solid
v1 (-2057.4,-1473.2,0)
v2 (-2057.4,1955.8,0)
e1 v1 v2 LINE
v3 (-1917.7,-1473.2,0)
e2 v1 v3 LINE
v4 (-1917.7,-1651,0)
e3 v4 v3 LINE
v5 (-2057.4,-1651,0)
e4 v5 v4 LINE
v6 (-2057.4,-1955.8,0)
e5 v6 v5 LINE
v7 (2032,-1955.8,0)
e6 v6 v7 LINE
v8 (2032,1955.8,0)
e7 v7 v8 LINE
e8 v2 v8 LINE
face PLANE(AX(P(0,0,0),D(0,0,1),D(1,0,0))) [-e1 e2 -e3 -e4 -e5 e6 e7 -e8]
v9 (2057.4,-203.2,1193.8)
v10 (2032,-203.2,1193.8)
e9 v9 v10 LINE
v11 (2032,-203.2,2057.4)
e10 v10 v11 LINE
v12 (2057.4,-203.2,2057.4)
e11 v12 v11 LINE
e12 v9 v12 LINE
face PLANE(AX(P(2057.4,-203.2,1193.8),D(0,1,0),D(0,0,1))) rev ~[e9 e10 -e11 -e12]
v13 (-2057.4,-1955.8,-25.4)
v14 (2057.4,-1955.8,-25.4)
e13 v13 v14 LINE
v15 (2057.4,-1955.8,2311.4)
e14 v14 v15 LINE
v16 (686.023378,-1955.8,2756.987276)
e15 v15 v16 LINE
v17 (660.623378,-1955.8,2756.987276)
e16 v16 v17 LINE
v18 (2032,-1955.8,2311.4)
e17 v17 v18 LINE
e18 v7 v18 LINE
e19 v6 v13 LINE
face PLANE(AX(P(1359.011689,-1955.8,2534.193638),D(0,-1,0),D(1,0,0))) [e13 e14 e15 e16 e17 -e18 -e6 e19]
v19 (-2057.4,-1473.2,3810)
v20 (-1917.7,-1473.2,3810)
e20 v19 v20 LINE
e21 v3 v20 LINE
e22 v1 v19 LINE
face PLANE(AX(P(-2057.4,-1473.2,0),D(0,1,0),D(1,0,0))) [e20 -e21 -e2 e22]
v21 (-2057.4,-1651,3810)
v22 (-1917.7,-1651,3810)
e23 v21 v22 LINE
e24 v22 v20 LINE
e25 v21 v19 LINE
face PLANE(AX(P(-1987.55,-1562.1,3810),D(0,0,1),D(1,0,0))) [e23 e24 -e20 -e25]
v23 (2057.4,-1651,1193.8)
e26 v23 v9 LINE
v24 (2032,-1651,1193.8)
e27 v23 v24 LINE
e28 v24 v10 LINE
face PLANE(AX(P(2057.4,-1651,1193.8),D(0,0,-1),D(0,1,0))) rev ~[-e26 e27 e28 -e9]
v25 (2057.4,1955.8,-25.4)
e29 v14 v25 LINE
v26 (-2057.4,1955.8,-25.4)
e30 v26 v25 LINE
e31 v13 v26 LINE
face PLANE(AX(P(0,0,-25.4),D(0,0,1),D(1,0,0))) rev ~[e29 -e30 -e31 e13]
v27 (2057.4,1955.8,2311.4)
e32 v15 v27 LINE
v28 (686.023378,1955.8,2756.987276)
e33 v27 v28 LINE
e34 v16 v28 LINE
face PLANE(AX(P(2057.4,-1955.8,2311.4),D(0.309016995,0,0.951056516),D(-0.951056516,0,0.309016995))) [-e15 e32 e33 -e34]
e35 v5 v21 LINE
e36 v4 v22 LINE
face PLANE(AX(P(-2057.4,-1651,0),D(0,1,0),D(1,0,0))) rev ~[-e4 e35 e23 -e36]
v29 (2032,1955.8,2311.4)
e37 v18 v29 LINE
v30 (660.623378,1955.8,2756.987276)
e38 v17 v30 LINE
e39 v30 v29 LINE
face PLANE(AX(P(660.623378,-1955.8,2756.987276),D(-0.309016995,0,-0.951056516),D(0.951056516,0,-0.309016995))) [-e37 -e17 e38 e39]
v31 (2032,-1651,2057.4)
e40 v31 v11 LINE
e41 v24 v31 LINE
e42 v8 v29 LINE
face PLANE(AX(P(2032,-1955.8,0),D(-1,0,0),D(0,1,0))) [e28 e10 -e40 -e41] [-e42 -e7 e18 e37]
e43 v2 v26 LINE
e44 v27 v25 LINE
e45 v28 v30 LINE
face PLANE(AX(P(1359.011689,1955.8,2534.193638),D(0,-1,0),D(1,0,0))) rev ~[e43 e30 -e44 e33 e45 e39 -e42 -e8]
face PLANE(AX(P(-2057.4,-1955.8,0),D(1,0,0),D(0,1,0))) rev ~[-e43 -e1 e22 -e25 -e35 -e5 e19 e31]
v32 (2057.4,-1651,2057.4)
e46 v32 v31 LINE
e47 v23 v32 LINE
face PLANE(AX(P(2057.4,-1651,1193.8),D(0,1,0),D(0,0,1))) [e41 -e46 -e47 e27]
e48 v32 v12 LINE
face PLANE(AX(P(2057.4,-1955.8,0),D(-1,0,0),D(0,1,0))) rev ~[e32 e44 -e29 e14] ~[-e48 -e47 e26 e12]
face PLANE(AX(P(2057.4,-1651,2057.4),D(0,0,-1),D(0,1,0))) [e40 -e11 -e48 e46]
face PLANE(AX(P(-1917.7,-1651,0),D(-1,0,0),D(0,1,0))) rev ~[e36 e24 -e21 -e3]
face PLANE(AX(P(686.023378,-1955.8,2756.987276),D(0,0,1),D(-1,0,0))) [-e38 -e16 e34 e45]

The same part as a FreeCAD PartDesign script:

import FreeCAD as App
import Part
import Sketcher
from FreeCAD import Vector
Q = App.Units.Quantity


def add_polygon(sketch, points):
    """Adds a closed chain of lines whose ends are joined by coincident constraints."""
    first, n = sketch.GeometryCount, len(points)
    for a, b in zip(points, points[1:] + points[:1]):
        sketch.addGeometry(Part.LineSegment(App.Vector(*a, 0), App.Vector(*b, 0)), False)
    for i in range(n):
        sketch.addConstraint(Sketcher.Constraint("Coincident", first + i, 2, first + (i + 1) % n, 1))

doc = App.newDocument("Part")
params = doc.addObject("Spreadsheet::Sheet", "Params")
for row, (alias, value) in enumerate([
    ("sketch1_width", "162 in"),
    ("sketch1_height", "154 in"),
    ("pad1_length", "1 in"),
    ("sketch2_width", "1 in"),
    ("sketch2_height", "154 in"),
    ("pad2_length", "91 in"),
    ("sketch3_width", "57 in"),
    ("sketch3_height", "34 in"),
    ("pocket1_length", "1 in"),
    ("sketch4_height", "7 in"),
    ("sketch4_width", "5.5 in"),
    ("pad3_length", "150 in"),
    ("sketch5_width", "1 in"),
    ("pad4_length", "154 in"),
], start=1):
    params.set(f"A{row}", alias)
    params.set(f"B{row}", "=" + value)
    params.setAlias(f"B{row}", alias)

body = doc.addObject("PartDesign::Body", "Body")

sketch1 = body.newObject("Sketcher::SketchObject", "Sketch")
sketch1.AttachmentSupport = (doc.getObject("XY_Plane"), [""])
sketch1.MapMode = "FlatFace"
add_polygon(sketch1, [(-2057, 1956), (-2057, -1956), (2057, -1956), (2057, 1956)])
sketch1.addConstraint(Sketcher.Constraint("Vertical", 0))
sketch1.addConstraint(Sketcher.Constraint("Horizontal", 1))
sketch1.addConstraint(Sketcher.Constraint("Vertical", 2))
sketch1.addConstraint(Sketcher.Constraint("Horizontal", 3))
sketch1.addConstraint(Sketcher.Constraint("Symmetric", 0, 2, 2, 2, -1, 1))
sketch1.addConstraint(Sketcher.Constraint("DistanceX", 1, 1, 1, 2, Q("162 in")))
sketch1.addConstraint(Sketcher.Constraint("DistanceY", 0, 2, 0, 1, Q("154 in")))
sketch1.setExpression("Constraints[9]", "Params.sketch1_width")
sketch1.setExpression("Constraints[10]", "Params.sketch1_height")
pad1 = body.newObject("PartDesign::Pad", "Pad")
pad1.Profile = sketch1
pad1.setExpression("Length", "Params.pad1_length")
pad1.Reversed = True

sketch2 = body.newObject("Sketcher::SketchObject", "Sketch001")
sketch2.AttachmentSupport = (doc.getObject("XY_Plane"), [""])
sketch2.MapMode = "FlatFace"
add_polygon(sketch2, [(2032, 1956), (2032, -1956), (2057, -1956), (2057, 1956)])
sketch2.addConstraint(Sketcher.Constraint("Vertical", 0))
sketch2.addConstraint(Sketcher.Constraint("Horizontal", 1))
sketch2.addConstraint(Sketcher.Constraint("Vertical", 2))
sketch2.addConstraint(Sketcher.Constraint("Horizontal", 3))
sketch2.addConstraint(Sketcher.Constraint("DistanceX", 1, 1, 1, 2, Q("1 in")))
sketch2.addConstraint(Sketcher.Constraint("DistanceY", 0, 2, 0, 1, Q("154 in")))
sketch2.addConstraint(Sketcher.Constraint("DistanceX", -1, 1, 0, 2, Q("80 in")))
sketch2.addConstraint(Sketcher.Constraint("DistanceY", 0, 2, -1, 1, Q("77 in")))
sketch2.setExpression("Constraints[8]", "Params.sketch2_width")
sketch2.setExpression("Constraints[9]", "Params.sketch2_height")
pad2 = body.newObject("PartDesign::Pad", "Pad001")
pad2.Profile = sketch2
pad2.setExpression("Length", "Params.pad2_length")

sketch3 = body.newObject("Sketcher::SketchObject", "Sketch002")
sketch3.AttachmentSupport = (doc.getObject("YZ_Plane"), [""])
sketch3.MapMode = "FlatFace"
sketch3.AttachmentOffset = App.Placement(Vector(0, 0, 81 * 25.4), App.Rotation())
add_polygon(sketch3, [(-1651, 2057), (-1651, 1194), (-203, 1194), (-203, 2057)])
sketch3.addConstraint(Sketcher.Constraint("Vertical", 0))
sketch3.addConstraint(Sketcher.Constraint("Horizontal", 1))
sketch3.addConstraint(Sketcher.Constraint("Vertical", 2))
sketch3.addConstraint(Sketcher.Constraint("Horizontal", 3))
sketch3.addConstraint(Sketcher.Constraint("DistanceX", 1, 1, 1, 2, Q("57 in")))
sketch3.addConstraint(Sketcher.Constraint("DistanceY", 0, 2, 0, 1, Q("34 in")))
sketch3.addConstraint(Sketcher.Constraint("DistanceX", 0, 2, -1, 1, Q("65 in")))
sketch3.addConstraint(Sketcher.Constraint("DistanceY", -1, 1, 0, 2, Q("47 in")))
sketch3.setExpression("Constraints[8]", "Params.sketch3_width")
sketch3.setExpression("Constraints[9]", "Params.sketch3_height")
pocket1 = body.newObject("PartDesign::Pocket", "Pocket")
pocket1.Profile = sketch3
pocket1.setExpression("Length", "Params.pocket1_length")

sketch4 = body.newObject("Sketcher::SketchObject", "Sketch003")
sketch4.AttachmentSupport = (doc.getObject("XY_Plane"), [""])
sketch4.MapMode = "FlatFace"
add_polygon(sketch4, [(-2057, -1473), (-2057, -1651), (-1918, -1651), (-1918, -1473)])
sketch4.addConstraint(Sketcher.Constraint("Vertical", 0))
sketch4.addConstraint(Sketcher.Constraint("Horizontal", 1))
sketch4.addConstraint(Sketcher.Constraint("Vertical", 2))
sketch4.addConstraint(Sketcher.Constraint("Horizontal", 3))
sketch4.addConstraint(Sketcher.Constraint("DistanceY", 0, 2, 0, 1, Q("7 in")))
sketch4.addConstraint(Sketcher.Constraint("DistanceX", 1, 1, 1, 2, Q("5.5 in")))
sketch4.addConstraint(Sketcher.Constraint("DistanceX", 0, 2, -1, 1, Q("81 in")))
sketch4.addConstraint(Sketcher.Constraint("DistanceY", 0, 2, -1, 1, Q("65 in")))
sketch4.setExpression("Constraints[8]", "Params.sketch4_height")
sketch4.setExpression("Constraints[9]", "Params.sketch4_width")
pad3 = body.newObject("PartDesign::Pad", "Pad002")
pad3.Profile = sketch4
pad3.setExpression("Length", "Params.pad3_length")

sketch5 = body.newObject("Sketcher::SketchObject", "Sketch004")
sketch5.AttachmentSupport = (doc.getObject("XZ_Plane"), [""])
sketch5.MapMode = "FlatFace"
sketch5.AttachmentOffset = App.Placement(Vector(0, 0, 77 * 25.4), App.Rotation())
add_polygon(sketch5, [(661, 2757), (2032, 2311), (2057, 2311), (686, 2757)])
sketch5.addConstraint(Sketcher.Constraint("Horizontal", 1))
sketch5.addConstraint(Sketcher.Constraint("Horizontal", 3))
sketch5.addConstraint(Sketcher.Constraint("Parallel", 0, 2))
sketch5.addConstraint(Sketcher.Constraint("DistanceX", 1, 1, 1, 2, Q("1 in")))
sketch5.addConstraint(Sketcher.Constraint("DistanceX", -1, 1, 0, 2, Q("80 in")))
sketch5.addConstraint(Sketcher.Constraint("DistanceY", -1, 1, 0, 2, Q("91 in")))
sketch5.addConstraint(Sketcher.Constraint("Angle", 0, Q("-18 deg")))
sketch5.addConstraint(Sketcher.Constraint("DistanceX", -1, 1, 2, 2, Q("686.023378 mm")))
sketch5.setExpression("Constraints[7]", "Params.sketch5_width")
pad4 = body.newObject("PartDesign::Pad", "Pad003")
pad4.Profile = sketch5
pad4.setExpression("Length", "Params.pad4_length")
pad4.Reversed = True

doc.recompute()
